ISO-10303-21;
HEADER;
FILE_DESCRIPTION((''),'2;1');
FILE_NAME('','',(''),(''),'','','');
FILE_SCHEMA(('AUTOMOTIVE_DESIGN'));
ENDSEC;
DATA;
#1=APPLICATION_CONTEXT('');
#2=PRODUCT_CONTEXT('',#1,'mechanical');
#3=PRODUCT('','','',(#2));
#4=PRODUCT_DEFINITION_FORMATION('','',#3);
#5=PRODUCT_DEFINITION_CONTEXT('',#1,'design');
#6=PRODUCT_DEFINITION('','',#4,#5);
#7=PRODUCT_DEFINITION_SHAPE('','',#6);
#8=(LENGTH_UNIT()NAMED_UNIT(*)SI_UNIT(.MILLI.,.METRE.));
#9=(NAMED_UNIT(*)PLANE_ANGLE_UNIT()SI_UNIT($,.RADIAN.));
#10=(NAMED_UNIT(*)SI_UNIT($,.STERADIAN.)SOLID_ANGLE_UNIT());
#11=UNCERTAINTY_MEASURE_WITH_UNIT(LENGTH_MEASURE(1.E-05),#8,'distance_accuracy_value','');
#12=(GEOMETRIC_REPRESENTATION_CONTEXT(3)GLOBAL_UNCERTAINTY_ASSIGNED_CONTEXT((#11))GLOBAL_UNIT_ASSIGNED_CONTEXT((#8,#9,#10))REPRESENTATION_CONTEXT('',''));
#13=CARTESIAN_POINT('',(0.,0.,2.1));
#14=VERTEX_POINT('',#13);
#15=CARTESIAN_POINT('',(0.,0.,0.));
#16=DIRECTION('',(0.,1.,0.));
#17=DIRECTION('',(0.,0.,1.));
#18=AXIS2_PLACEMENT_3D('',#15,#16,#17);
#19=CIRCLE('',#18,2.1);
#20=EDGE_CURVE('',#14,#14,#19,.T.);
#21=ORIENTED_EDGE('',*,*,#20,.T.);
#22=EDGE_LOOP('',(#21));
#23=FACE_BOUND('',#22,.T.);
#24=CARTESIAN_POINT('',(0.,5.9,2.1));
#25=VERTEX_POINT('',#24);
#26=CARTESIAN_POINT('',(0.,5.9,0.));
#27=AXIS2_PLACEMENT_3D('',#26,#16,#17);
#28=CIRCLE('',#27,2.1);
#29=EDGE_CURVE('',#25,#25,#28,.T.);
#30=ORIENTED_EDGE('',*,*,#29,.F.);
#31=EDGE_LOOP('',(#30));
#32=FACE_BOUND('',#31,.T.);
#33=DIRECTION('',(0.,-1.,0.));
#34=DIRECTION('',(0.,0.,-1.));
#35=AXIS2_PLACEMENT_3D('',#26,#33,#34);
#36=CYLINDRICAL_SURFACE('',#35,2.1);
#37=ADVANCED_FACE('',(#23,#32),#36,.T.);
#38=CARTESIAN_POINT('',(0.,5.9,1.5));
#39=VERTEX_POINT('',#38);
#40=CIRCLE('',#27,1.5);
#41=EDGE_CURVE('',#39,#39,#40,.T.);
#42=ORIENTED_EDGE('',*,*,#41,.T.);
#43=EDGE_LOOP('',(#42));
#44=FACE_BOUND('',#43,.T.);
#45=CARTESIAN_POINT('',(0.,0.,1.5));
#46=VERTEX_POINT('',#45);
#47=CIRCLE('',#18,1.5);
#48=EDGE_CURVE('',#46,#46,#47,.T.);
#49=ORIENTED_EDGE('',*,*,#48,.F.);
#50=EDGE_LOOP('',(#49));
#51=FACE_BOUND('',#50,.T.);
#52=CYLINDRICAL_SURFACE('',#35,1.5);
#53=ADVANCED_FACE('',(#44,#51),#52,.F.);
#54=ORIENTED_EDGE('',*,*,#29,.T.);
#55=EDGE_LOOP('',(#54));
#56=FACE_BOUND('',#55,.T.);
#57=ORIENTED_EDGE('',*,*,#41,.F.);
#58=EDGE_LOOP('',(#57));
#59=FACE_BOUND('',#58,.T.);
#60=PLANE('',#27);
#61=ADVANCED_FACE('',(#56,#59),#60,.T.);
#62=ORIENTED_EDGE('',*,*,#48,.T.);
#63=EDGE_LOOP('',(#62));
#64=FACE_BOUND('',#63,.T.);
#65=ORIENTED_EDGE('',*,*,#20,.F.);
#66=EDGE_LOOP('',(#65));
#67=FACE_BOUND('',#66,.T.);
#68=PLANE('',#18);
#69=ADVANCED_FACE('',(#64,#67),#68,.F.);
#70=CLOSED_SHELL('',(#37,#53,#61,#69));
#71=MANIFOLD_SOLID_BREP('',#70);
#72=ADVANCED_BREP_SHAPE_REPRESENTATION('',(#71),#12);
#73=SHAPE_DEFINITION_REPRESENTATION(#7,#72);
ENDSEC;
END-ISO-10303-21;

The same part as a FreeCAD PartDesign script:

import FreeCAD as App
import Part
import Sketcher
from FreeCAD import Vector
Q = App.Units.Quantity

doc = App.newDocument("Part")
body = doc.addObject("PartDesign::Body", "Body")

# Sketch on XZ plane
sketch1 = body.newObject("Sketcher::SketchObject", "Sketch")
sketch1.AttachmentSupport = (doc.getObject("XZ_Plane"), [""])
sketch1.MapMode = "FlatFace"
sketch1.addGeometry(Part.Circle(Vector(0, 0, 0), Vector(0, 0, 1), 2.1), False)
sketch1.addGeometry(Part.Circle(Vector(0, 0, 0), Vector(0, 0, 1), 1.5), False)
sketch1.addConstraint(Sketcher.Constraint("Coincident", 0, 3, -1, 1))
sketch1.addConstraint(Sketcher.Constraint("Coincident", 1, 3, -1, 1))
sketch1.addConstraint(Sketcher.Constraint("Diameter", 1, Q("3 mm")))
sketch1.addConstraint(Sketcher.Constraint("Diameter", 0, Q("4.2 mm")))
pad1 = body.newObject("PartDesign::Pad", "Pad")
pad1.Profile = sketch1
pad1.Length = 5.9
pad1.Reversed = True

doc.recompute()
